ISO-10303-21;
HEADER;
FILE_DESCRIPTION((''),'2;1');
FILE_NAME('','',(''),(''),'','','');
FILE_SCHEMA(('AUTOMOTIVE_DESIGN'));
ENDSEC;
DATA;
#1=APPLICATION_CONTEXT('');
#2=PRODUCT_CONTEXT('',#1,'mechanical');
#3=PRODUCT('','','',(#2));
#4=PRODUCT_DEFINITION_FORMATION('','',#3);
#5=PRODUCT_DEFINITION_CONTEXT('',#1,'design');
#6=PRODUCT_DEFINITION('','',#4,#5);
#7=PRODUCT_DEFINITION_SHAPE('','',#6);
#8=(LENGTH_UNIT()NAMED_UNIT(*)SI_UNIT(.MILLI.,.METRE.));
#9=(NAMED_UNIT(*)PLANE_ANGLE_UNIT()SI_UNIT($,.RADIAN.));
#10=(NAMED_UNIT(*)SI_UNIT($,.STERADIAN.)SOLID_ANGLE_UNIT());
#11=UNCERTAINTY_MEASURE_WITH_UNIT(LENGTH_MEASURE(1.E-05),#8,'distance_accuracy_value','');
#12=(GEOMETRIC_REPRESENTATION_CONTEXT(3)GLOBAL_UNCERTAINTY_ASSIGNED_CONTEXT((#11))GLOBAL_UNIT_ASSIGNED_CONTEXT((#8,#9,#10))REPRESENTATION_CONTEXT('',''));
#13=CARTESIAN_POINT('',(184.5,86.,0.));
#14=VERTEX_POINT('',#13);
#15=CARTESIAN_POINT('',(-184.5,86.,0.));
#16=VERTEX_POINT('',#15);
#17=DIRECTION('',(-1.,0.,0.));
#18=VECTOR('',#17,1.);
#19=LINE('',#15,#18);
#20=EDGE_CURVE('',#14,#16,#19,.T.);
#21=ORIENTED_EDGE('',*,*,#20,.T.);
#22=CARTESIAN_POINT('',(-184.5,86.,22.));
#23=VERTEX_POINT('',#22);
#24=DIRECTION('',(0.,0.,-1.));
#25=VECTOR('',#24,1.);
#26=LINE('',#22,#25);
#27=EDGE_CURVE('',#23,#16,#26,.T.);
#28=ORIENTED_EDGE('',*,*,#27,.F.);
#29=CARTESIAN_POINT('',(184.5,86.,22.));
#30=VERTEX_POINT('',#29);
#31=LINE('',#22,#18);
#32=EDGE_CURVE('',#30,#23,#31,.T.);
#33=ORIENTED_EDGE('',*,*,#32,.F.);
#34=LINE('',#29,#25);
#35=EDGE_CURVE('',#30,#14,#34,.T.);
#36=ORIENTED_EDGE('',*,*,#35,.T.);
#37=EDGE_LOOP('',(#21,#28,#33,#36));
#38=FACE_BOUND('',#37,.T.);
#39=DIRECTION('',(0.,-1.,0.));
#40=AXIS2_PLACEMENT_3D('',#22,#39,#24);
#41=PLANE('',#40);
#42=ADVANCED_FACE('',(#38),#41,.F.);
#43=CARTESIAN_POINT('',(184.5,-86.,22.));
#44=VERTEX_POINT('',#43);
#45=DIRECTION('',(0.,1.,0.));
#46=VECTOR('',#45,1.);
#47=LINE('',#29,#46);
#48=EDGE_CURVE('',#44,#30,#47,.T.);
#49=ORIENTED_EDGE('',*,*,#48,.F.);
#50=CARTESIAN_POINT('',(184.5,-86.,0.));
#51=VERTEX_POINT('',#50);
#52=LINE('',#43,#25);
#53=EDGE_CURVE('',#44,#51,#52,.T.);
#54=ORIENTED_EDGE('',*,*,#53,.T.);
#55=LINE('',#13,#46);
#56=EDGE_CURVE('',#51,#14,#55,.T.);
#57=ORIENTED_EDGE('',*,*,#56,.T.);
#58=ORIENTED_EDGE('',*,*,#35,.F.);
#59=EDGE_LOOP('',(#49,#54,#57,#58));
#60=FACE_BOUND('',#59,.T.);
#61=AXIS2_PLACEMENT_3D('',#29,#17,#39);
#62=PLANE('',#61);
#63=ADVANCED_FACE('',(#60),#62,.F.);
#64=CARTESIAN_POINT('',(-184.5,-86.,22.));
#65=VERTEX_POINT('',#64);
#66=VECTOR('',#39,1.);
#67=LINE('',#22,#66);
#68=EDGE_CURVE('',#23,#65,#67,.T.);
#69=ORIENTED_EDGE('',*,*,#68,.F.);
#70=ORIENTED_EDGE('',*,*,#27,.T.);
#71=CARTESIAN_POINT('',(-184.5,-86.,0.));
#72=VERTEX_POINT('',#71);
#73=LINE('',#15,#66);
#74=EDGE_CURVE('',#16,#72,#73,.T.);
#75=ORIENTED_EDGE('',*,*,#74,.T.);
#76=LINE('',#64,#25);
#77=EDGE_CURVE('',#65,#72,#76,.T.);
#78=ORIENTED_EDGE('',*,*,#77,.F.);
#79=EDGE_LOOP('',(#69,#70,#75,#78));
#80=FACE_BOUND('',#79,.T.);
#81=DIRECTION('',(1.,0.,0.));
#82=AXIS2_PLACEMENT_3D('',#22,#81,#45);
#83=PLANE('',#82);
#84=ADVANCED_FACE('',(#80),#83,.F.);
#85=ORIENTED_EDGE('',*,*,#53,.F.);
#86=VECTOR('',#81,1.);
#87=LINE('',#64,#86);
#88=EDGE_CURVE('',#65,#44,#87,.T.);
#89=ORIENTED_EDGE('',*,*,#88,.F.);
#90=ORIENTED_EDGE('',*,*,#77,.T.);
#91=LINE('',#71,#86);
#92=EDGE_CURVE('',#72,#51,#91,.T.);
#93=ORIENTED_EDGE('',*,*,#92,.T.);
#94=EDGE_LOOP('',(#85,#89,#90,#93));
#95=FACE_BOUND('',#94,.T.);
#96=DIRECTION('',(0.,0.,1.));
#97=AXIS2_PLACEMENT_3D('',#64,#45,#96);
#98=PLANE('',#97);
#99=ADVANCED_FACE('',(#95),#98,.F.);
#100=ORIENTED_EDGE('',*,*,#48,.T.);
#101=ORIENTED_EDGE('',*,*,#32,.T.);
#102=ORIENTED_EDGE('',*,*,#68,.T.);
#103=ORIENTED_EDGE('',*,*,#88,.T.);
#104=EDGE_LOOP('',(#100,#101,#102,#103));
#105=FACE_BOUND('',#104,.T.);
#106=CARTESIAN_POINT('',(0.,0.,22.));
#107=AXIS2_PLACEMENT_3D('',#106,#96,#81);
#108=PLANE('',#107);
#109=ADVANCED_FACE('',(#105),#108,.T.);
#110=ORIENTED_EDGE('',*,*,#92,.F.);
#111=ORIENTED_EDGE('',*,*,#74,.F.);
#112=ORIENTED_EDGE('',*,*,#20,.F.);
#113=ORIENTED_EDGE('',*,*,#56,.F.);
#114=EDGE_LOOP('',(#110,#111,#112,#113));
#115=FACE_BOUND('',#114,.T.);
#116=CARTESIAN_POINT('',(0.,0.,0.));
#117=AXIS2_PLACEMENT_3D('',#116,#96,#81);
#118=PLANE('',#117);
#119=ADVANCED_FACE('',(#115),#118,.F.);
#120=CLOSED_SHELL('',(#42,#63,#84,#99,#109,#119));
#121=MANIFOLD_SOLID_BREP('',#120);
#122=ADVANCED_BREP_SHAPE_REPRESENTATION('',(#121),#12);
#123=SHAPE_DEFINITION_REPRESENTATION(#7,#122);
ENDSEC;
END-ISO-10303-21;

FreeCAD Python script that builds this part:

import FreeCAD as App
import Part
import Sketcher
from FreeCAD import Vector


def add_polygon(sketch, points):
    """Adds a closed chain of lines whose ends are joined by coincident constraints."""
    first, n = sketch.GeometryCount, len(points)
    for a, b in zip(points, points[1:] + points[:1]):
        sketch.addGeometry(Part.LineSegment(App.Vector(*a, 0), App.Vector(*b, 0)), False)
    for i in range(n):
        sketch.addConstraint(Sketcher.Constraint("Coincident", first + i, 2, first + (i + 1) % n, 1))

doc = App.newDocument("Part")
params = doc.addObject("Spreadsheet::Sheet", "Params")
for row, (alias, value) in enumerate([
    ("sketch1_width", "369 mm"),
    ("sketch1_height", "172 mm"),
    ("pad1_length", "22 mm"),
], start=1):
    params.set(f"A{row}", alias)
    params.set(f"B{row}", "=" + value)
    params.setAlias(f"B{row}", alias)

body = doc.addObject("PartDesign::Body", "Body")

# Sketch on XY plane
sketch1 = body.newObject("Sketcher::SketchObject", "Sketch")
sketch1.AttachmentSupport = (doc.getObject("XY_Plane"), [""])
sketch1.MapMode = "FlatFace"
add_polygon(sketch1, [(-184, 86), (-184, -86), (184, -86), (184, 86)])  # lines 0-3
sketch1.addConstraint([
    Sketcher.Constraint("Vertical", 0),
    Sketcher.Constraint("Horizontal", 1),
    Sketcher.Constraint("Vertical", 2),
    Sketcher.Constraint("Horizontal", 3),
    Sketcher.Constraint("Symmetric", 0, 2, 2, 2, -1, 1),
    Sketcher.Constraint("DistanceX", 1, 1, 1, 2, 369.0),
    Sketcher.Constraint("DistanceY", 0, 2, 0, 1, 172.0),
])
sketch1.setExpression("Constraints[9]", "Params.sketch1_width")
sketch1.setExpression("Constraints[10]", "Params.sketch1_height")
pad1 = body.newObject("PartDesign::Pad", "Pad")
pad1.Profile = sketch1
pad1.setExpression("Length", "Params.pad1_length")

doc.recompute()
